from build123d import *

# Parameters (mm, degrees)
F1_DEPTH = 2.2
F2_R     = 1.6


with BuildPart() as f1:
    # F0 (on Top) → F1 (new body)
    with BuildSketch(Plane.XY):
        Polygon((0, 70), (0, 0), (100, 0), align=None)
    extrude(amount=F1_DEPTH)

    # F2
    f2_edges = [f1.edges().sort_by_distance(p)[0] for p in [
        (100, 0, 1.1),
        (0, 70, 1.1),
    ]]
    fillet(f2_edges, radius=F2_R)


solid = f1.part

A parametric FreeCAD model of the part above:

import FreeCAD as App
import Part
import Sketcher

V = App.Vector


def edges_at(feature, points):
    """Names of the edges that pass closest to the given points."""
    edges = feature.Shape.Edges
    near = lambda p: min(range(len(edges)), key=lambda i: edges[i].distToShape(Part.Vertex(*p))[0])
    return sorted({f"Edge{near(p) + 1}" for p in points})


def add_polygon(sketch, points):
    """Adds a closed chain of lines whose ends are joined by coincident constraints."""
    first, n = sketch.GeometryCount, len(points)
    for a, b in zip(points, points[1:] + points[:1]):
        sketch.addGeometry(Part.LineSegment(App.Vector(*a, 0), App.Vector(*b, 0)), False)
    for i in range(n):
        sketch.addConstraint(Sketcher.Constraint("Coincident", first + i, 2, first + (i + 1) % n, 1))

doc = App.newDocument("Part")
body = doc.addObject("PartDesign::Body", "Body")

# Sketch on XY plane
sketch1 = doc.addObject("Sketcher::SketchObject", "Sketch")
body.addObject(sketch1)
sketch1.AttachmentSupport = (doc.XY_Plane, [""])
sketch1.MapMode = "FlatFace"
add_polygon(sketch1, [(0, 70), (0, 0), (100, 0)])  # lines 0-2
sketch1.addConstraint([
    Sketcher.Constraint("Vertical", 0),
    Sketcher.Constraint("Horizontal", 1),
    Sketcher.Constraint("Coincident", 0, 2, -1, 1),
    Sketcher.Constraint("DistanceX", 1, 1, 1, 2, 100.0),
    Sketcher.Constraint("DistanceY", 0, 2, 0, 1, 70.0),
])
pad1 = doc.addObject("PartDesign::Pad", "Pad")
body.addObject(pad1)
pad1.Profile = sketch1
pad1.Length = 2.2
doc.recompute()

fillet = doc.addObject("PartDesign::Fillet", "Fillet")
body.addObject(fillet)
fillet.Base = (pad1, edges_at(pad1, [(100, 0, 1.1), (0, 70, 1.1)]))
fillet.Radius = 1.6

doc.recompute()
